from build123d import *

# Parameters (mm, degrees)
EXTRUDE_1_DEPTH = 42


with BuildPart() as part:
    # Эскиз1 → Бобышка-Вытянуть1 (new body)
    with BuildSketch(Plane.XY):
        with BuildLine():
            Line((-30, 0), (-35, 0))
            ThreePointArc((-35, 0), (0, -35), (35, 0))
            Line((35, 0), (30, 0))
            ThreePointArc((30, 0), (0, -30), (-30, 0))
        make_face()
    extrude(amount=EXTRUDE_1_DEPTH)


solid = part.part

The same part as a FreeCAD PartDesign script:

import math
import FreeCAD as App
import Part
import Sketcher

doc = App.newDocument("Part")
body = doc.addObject("PartDesign::Body", "Body")

# Sketch on XY plane
sketch1 = body.newObject("Sketcher::SketchObject", "Sketch")
sketch1.AttachmentSupport = (doc.getObject("XY_Plane"), [""])
sketch1.MapMode = "FlatFace"
sketch1.addGeometry([
    Part.LineSegment(App.Vector(-30, 0, 0), App.Vector(-35, 0, 0)),
    Part.ArcOfCircle(Part.Circle(App.Vector(0, 0, 0), App.Vector(0, 0, 1), 35), math.radians(180), math.radians(360)),
    Part.LineSegment(App.Vector(35, 0, 0), App.Vector(30, 0, 0)),
    Part.ArcOfCircle(Part.Circle(App.Vector(0, 0, 0), App.Vector(0, 0, 1), 30), math.radians(180), math.radians(360)),
], False)
sketch1.addConstraint([
    Sketcher.Constraint("Coincident", 0, 2, 1, 1),
    Sketcher.Constraint("Coincident", 1, 2, 2, 1),
    Sketcher.Constraint("Coincident", 2, 2, 3, 2),
    Sketcher.Constraint("Coincident", 3, 1, 0, 1),
    Sketcher.Constraint("Horizontal", 0),
    Sketcher.Constraint("Horizontal", 2),
    Sketcher.Constraint("Coincident", 1, 3, -1, 1),
    Sketcher.Constraint("Coincident", 3, 3, -1, 1),
    Sketcher.Constraint("PointOnObject", 0, 2, -1),
    Sketcher.Constraint("PointOnObject", 1, 2, -1),
    Sketcher.Constraint("Radius", 1, 35.0),
    Sketcher.Constraint("Radius", 3, 30.0),
])
pad1 = body.newObject("PartDesign::Pad", "Pad")
pad1.Profile = sketch1
pad1.Length = 42

doc.recompute()
